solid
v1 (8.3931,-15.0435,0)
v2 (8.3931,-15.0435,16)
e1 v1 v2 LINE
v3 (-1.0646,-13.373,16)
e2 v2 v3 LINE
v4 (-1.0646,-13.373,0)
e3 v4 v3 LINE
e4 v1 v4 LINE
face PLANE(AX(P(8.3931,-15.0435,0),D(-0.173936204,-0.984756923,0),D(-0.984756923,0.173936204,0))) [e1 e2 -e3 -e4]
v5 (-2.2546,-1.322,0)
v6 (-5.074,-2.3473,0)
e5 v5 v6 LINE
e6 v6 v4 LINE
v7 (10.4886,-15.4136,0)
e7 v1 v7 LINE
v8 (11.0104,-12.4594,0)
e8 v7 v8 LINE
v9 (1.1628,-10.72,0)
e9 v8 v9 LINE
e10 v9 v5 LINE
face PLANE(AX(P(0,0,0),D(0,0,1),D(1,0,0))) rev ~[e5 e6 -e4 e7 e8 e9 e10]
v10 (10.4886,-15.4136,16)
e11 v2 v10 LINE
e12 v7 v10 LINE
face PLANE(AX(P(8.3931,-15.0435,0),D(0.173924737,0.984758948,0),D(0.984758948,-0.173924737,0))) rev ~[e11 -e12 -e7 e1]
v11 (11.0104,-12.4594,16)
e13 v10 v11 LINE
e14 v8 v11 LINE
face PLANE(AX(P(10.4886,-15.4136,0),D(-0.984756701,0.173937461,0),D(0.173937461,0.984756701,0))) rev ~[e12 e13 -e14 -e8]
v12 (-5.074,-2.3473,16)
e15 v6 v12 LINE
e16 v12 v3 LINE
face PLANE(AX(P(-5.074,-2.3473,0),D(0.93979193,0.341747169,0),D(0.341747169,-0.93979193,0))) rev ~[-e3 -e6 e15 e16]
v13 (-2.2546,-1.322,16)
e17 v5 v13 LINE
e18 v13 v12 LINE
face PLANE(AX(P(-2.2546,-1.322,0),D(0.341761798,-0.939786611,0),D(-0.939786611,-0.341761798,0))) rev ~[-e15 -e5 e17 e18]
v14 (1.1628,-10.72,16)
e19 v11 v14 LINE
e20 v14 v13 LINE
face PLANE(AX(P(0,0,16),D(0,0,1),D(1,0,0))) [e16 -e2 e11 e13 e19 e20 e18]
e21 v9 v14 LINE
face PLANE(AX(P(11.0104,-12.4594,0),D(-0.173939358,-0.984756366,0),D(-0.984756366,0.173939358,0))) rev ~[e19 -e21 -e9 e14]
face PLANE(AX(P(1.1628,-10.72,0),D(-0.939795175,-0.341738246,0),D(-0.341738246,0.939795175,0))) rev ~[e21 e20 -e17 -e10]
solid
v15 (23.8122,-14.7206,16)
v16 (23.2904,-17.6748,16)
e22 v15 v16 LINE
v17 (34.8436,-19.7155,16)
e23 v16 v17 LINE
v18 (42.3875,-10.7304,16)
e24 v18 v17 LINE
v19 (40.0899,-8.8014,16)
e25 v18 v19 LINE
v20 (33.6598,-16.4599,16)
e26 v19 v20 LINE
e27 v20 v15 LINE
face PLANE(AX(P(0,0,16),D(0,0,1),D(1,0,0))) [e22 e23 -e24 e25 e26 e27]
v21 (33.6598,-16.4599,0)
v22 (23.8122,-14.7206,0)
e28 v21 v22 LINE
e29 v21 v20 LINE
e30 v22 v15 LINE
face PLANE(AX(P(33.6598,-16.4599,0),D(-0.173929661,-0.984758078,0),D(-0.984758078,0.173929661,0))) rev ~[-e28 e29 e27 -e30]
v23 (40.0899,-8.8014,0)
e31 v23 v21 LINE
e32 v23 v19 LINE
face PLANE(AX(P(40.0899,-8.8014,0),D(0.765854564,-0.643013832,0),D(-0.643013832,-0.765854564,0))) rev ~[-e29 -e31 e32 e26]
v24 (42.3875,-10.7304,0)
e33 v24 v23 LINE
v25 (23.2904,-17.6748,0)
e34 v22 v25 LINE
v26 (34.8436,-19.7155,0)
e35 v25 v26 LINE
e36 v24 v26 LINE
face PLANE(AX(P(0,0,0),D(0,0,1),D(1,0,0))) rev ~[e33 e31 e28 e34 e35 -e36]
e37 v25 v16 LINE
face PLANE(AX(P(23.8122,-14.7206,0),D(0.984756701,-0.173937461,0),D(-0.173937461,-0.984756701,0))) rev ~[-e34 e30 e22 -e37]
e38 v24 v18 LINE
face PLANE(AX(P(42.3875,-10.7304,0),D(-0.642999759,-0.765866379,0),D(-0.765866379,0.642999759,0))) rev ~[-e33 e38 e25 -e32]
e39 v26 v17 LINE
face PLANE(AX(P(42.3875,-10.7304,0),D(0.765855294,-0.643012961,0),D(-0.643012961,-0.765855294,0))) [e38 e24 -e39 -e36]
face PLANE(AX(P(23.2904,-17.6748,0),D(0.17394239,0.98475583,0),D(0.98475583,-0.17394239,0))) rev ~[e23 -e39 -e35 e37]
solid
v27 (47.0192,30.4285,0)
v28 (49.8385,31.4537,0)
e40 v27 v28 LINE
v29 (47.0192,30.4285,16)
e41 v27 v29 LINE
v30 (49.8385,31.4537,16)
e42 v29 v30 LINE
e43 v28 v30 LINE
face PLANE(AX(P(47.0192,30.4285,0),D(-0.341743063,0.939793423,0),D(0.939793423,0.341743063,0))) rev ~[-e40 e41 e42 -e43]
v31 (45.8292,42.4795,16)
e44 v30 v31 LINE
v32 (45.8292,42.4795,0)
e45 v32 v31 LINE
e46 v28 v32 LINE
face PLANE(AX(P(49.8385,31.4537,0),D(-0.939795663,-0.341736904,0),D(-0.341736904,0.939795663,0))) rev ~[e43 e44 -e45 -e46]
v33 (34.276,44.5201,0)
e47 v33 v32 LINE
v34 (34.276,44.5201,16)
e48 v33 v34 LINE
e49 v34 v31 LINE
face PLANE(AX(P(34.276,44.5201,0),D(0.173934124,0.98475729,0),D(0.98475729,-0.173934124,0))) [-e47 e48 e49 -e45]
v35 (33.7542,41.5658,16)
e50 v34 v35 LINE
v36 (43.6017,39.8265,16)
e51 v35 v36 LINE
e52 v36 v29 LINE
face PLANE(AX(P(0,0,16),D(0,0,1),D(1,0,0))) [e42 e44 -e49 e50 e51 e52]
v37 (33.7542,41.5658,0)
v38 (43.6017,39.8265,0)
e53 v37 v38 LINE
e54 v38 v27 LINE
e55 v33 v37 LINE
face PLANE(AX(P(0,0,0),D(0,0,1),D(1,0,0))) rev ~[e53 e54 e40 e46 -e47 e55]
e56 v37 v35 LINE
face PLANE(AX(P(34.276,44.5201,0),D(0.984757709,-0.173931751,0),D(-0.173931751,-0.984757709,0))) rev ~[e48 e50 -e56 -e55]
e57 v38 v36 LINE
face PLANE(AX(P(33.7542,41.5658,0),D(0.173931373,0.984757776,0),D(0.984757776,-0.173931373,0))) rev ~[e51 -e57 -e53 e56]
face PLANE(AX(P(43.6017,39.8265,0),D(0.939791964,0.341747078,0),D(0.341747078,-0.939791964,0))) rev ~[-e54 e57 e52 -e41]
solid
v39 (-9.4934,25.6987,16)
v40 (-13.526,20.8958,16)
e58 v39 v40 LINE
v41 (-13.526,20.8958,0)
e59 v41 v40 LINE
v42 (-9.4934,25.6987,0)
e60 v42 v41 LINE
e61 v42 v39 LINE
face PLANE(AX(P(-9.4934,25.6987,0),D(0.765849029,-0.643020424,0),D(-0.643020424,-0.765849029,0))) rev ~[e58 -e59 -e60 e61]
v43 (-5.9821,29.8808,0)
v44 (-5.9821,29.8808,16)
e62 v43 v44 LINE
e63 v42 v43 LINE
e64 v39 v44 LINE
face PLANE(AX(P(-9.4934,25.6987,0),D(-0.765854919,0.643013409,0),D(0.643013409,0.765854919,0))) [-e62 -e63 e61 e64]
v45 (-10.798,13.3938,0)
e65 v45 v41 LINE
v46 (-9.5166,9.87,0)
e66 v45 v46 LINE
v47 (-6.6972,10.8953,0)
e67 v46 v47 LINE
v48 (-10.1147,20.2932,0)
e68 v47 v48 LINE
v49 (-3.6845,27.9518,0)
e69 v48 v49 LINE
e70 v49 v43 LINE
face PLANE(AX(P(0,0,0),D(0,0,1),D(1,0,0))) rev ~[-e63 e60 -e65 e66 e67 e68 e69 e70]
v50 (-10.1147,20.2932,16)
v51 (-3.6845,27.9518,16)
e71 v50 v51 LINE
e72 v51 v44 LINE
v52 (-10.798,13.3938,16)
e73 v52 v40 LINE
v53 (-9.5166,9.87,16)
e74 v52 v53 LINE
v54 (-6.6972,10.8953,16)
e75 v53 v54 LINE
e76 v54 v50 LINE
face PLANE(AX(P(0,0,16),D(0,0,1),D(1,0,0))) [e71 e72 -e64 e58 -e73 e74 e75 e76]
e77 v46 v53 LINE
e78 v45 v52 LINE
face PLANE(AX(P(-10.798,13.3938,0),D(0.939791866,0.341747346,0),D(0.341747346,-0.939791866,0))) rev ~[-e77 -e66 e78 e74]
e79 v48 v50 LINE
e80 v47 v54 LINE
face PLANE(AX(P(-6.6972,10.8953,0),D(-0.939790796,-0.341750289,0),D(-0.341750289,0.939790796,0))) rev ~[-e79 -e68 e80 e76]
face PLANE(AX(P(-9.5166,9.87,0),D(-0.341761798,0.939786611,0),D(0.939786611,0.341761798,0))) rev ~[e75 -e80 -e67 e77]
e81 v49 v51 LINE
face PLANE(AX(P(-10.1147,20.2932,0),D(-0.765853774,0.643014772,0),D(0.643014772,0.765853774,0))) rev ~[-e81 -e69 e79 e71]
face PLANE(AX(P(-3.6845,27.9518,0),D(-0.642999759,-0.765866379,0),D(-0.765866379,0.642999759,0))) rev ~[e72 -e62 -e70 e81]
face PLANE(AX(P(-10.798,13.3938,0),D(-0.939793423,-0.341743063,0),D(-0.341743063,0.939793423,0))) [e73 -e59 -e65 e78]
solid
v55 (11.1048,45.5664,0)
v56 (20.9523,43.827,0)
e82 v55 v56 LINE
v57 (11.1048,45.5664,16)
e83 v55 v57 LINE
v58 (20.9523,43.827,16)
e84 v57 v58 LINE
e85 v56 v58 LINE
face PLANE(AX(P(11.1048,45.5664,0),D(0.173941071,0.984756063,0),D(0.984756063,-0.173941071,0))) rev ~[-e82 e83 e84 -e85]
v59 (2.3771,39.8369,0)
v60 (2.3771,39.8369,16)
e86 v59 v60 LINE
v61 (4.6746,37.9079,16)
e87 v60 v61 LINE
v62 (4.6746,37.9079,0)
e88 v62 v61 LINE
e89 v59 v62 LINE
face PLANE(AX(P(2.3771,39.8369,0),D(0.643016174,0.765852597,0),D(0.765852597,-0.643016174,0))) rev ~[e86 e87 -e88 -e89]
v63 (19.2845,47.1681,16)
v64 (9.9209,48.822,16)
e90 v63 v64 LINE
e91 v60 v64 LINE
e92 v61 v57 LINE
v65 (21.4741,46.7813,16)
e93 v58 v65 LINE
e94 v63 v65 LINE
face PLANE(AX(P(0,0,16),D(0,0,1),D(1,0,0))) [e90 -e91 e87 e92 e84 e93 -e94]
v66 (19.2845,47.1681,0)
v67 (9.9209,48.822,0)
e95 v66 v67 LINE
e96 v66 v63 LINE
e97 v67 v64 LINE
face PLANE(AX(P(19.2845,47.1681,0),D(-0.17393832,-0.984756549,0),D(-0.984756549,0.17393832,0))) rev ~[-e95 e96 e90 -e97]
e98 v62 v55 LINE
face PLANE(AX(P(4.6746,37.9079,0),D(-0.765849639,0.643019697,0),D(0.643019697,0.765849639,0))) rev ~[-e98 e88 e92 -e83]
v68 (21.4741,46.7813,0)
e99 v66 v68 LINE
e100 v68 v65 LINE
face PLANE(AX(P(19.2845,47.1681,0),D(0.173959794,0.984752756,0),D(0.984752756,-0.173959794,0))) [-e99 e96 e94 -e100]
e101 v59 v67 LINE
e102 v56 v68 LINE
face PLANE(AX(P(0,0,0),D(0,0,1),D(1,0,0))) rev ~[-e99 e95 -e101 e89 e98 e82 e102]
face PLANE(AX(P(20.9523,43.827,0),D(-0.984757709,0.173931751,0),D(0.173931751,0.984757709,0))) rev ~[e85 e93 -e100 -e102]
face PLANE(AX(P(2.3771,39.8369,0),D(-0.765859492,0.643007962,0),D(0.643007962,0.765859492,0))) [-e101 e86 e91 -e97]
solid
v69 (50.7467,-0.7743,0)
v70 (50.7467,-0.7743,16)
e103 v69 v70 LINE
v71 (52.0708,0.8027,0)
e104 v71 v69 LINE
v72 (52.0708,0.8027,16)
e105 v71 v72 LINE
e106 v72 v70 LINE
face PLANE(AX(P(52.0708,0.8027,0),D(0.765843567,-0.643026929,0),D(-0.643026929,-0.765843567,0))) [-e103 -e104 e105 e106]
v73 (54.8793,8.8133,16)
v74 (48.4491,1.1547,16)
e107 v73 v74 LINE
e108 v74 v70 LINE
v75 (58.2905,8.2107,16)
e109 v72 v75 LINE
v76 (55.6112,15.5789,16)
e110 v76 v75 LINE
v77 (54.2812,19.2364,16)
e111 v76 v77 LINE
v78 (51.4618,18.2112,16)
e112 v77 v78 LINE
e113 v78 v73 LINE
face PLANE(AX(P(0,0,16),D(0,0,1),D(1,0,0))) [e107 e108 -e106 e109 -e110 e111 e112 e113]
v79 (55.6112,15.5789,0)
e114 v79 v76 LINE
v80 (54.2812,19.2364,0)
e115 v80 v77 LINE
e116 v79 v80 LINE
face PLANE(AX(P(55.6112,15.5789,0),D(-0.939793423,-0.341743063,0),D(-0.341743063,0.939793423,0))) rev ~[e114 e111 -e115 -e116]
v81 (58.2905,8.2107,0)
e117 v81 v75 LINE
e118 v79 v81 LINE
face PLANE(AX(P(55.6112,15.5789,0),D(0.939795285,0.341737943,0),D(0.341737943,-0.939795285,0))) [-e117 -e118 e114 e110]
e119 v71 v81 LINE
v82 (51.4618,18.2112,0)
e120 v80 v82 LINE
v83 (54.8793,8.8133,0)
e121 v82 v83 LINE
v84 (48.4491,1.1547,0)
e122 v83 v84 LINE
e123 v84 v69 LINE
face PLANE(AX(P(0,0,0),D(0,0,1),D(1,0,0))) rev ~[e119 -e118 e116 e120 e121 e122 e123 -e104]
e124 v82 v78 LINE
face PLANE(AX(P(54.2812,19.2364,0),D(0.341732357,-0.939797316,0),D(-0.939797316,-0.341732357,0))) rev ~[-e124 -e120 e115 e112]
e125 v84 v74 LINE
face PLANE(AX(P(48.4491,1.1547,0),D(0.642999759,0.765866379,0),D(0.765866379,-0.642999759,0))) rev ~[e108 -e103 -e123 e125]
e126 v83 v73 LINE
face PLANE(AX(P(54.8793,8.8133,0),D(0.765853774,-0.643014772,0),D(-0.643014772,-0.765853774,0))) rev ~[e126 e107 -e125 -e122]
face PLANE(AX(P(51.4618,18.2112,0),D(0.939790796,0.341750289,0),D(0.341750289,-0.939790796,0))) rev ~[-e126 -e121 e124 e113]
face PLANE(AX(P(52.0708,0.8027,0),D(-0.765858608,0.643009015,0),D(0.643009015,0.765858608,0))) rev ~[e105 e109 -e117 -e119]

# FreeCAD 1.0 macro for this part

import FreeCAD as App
import Part
import Sketcher
from FreeCAD import Vector
Q = App.Units.Quantity


def add_polygon(sketch, points):
    """Adds a closed chain of lines whose ends are joined by coincident constraints."""
    first, n = sketch.GeometryCount, len(points)
    for a, b in zip(points, points[1:] + points[:1]):
        sketch.addGeometry(Part.LineSegment(App.Vector(*a, 0), App.Vector(*b, 0)), False)
    for i in range(n):
        sketch.addConstraint(Sketcher.Constraint("Coincident", first + i, 2, first + (i + 1) % n, 1))

doc = App.newDocument("Part")
body = doc.addObject("PartDesign::Body", "Body")
body.AllowCompound = True

sketch1 = body.newObject("Sketcher::SketchObject", "Sketch")
sketch1.AttachmentSupport = (doc.getObject("XY_Plane"), [""])
sketch1.MapMode = "FlatFace"
add_polygon(sketch1, [(-13.5, 20.9), (-10.8, 13.4), (-9.5, 9.9), (-6.7, 10.9), (-10.1, 20.3), (-3.7, 28), (-6, 29.9), (-9.5, 25.7)])
add_polygon(sketch1, [(21.5, 46.8), (19.3, 47.2), (9.9, 48.8), (2.4, 39.8), (4.7, 37.9), (11.1, 45.6), (21, 43.8)])
add_polygon(sketch1, [(58.3, 8.2), (55.6, 15.6), (54.3, 19.2), (51.5, 18.2), (54.9, 8.8), (48.4, 1.2), (50.7, -0.8), (52.1, 0.8)])
add_polygon(sketch1, [(-1.1, -13.4), (8.4, -15), (10.5, -15.4), (11, -12.5), (1.2, -10.7), (-2.3, -1.3), (-5.1, -2.3)])
add_polygon(sketch1, [(33.7, -16.5), (23.8, -14.7), (23.3, -17.7), (34.8, -19.7), (42.4, -10.7), (40.1, -8.8)])
add_polygon(sketch1, [(43.6, 39.8), (47, 30.4), (49.8, 31.5), (45.8, 42.5), (34.3, 44.5), (33.8, 41.6)])
sketch1.addConstraint([
    Sketcher.Constraint("Parallel", 0, 1),
    Sketcher.Constraint("Perpendicular", 1, 2),
    Sketcher.Constraint("Perpendicular", 2, 3),
    Sketcher.Constraint("Perpendicular", 4, 5),
    Sketcher.Constraint("Perpendicular", 5, 6),
    Sketcher.Constraint("Parallel", 6, 7),
    Sketcher.Constraint("Parallel", 8, 9),
    Sketcher.Constraint("Parallel", 7, 10),
    Sketcher.Constraint("Perpendicular", 10, 11),
    Sketcher.Constraint("Perpendicular", 11, 12),
    Sketcher.Constraint("Parallel", 9, 13),
    Sketcher.Constraint("Perpendicular", 13, 14),
    Sketcher.Constraint("Parallel", 3, 15),
    Sketcher.Constraint("Parallel", 15, 16),
    Sketcher.Constraint("Perpendicular", 16, 17),
    Sketcher.Constraint("Perpendicular", 17, 18),
    Sketcher.Constraint("Parallel", 12, 19),
    Sketcher.Constraint("Perpendicular", 19, 20),
    Sketcher.Constraint("Perpendicular", 20, 21),
    Sketcher.Constraint("Parallel", 21, 22),
    Sketcher.Constraint("Perpendicular", 14, 23),
    Sketcher.Constraint("Parallel", 23, 24),
    Sketcher.Constraint("Perpendicular", 24, 25),
    Sketcher.Constraint("Perpendicular", 25, 26),
    Sketcher.Constraint("Parallel", 18, 27),
    Sketcher.Constraint("Perpendicular", 27, 28),
    Sketcher.Constraint("Perpendicular", 28, 29),
    Sketcher.Constraint("Parallel", 26, 30),
    Sketcher.Constraint("Perpendicular", 30, 31),
    Sketcher.Constraint("Perpendicular", 31, 32),
    Sketcher.Constraint("Parallel", 22, 33),
    Sketcher.Constraint("Perpendicular", 33, 34),
    Sketcher.Constraint("Perpendicular", 34, 35),
    Sketcher.Constraint("Parallel", 29, 36),
    Sketcher.Constraint("Perpendicular", 36, 37),
    Sketcher.Constraint("Perpendicular", 37, 38),
    Sketcher.Constraint("Parallel", 32, 39),
    Sketcher.Constraint("Perpendicular", 39, 40),
    Sketcher.Constraint("Perpendicular", 40, 41),
    Sketcher.Constraint("Equal", 3, 4),
    Sketcher.Constraint("Equal", 2, 5),
    Sketcher.Constraint("Equal", 5, 11),
    Sketcher.Constraint("Equal", 4, 12),
    Sketcher.Constraint("Equal", 12, 13),
    Sketcher.Constraint("Equal", 11, 14),
    Sketcher.Constraint("Equal", 14, 17),
    Sketcher.Constraint("Equal", 13, 18),
    Sketcher.Constraint("Equal", 18, 19),
    Sketcher.Constraint("Equal", 17, 20),
    Sketcher.Constraint("Equal", 20, 25),
    Sketcher.Constraint("Equal", 19, 26),
    Sketcher.Constraint("Equal", 26, 27),
    Sketcher.Constraint("Equal", 25, 28),
    Sketcher.Constraint("Equal", 10, 29),
    Sketcher.Constraint("Equal", 27, 30),
    Sketcher.Constraint("Equal", 28, 31),
    Sketcher.Constraint("Equal", 29, 32),
    Sketcher.Constraint("Equal", 32, 33),
    Sketcher.Constraint("Equal", 35, 36),
    Sketcher.Constraint("Equal", 34, 37),
    Sketcher.Constraint("Equal", 33, 38),
    Sketcher.Constraint("Equal", 38, 39),
    Sketcher.Constraint("Distance", 2, Q("3 mm")),
    Sketcher.Constraint("Distance", 3, Q("10 mm")),
    Sketcher.Constraint("DistanceY", -1, 1, 1, 2, Q("9.87 mm")),
    Sketcher.Constraint("DistanceY", 26, 2, -1, 1, Q("10.72 mm")),
    Sketcher.Constraint("DistanceX", -1, 1, 34, 2, Q("40.09 mm")),
    Sketcher.Constraint("DistanceY", 35, 2, -1, 1, Q("16.46 mm")),
    Sketcher.Constraint("DistanceY", -1, 1, 39, 2, Q("44.52 mm")),
    Sketcher.Constraint("DistanceX", 11, 2, 8, 2, Q("14.61 mm")),
    Sketcher.Constraint("DistanceY", 10, 2, 13, 2, Q("3.99 mm")),
    Sketcher.Constraint("DistanceX", 16, 2, 15, 2, Q("1.33 mm")),
    Sketcher.Constraint("DistanceY", 16, 2, 12, 2, Q("26.33 mm")),
    Sketcher.Constraint("DistanceY", 17, 2, 14, 2, Q("28.57 mm")),
    Sketcher.Constraint("DistanceY", 24, 2, 23, 2, Q("0.37 mm")),
    Sketcher.Constraint("DistanceX", 2, 2, 26, 2, Q("7.86 mm")),
    Sketcher.Constraint("DistanceX", 25, 2, 31, 2, Q("12.28 mm")),
    Sketcher.Constraint("DistanceX", 36, 2, 18, 2, Q("7.86 mm")),
    Sketcher.Constraint("DistanceX", 14, 2, 40, 2, Q("12.28 mm")),
    Sketcher.Constraint("DistanceX", 0, 2, -1, 1, Q("10.798 mm")),
    Sketcher.Constraint("DistanceY", -1, 1, 8, 2, Q("47.168 mm")),
    Sketcher.Constraint("DistanceX", -1, 1, 9, 2, Q("9.921 mm")),
    Sketcher.Constraint("DistanceY", 6, 2, 5, 2, Q("4.182 mm")),
    Sketcher.Constraint("DistanceX", 20, 2, 21, 2, Q("1.324 mm")),
])
pad1 = body.newObject("PartDesign::Pad", "Pad")
pad1.Profile = sketch1
pad1.Length = 16

doc.recompute()
